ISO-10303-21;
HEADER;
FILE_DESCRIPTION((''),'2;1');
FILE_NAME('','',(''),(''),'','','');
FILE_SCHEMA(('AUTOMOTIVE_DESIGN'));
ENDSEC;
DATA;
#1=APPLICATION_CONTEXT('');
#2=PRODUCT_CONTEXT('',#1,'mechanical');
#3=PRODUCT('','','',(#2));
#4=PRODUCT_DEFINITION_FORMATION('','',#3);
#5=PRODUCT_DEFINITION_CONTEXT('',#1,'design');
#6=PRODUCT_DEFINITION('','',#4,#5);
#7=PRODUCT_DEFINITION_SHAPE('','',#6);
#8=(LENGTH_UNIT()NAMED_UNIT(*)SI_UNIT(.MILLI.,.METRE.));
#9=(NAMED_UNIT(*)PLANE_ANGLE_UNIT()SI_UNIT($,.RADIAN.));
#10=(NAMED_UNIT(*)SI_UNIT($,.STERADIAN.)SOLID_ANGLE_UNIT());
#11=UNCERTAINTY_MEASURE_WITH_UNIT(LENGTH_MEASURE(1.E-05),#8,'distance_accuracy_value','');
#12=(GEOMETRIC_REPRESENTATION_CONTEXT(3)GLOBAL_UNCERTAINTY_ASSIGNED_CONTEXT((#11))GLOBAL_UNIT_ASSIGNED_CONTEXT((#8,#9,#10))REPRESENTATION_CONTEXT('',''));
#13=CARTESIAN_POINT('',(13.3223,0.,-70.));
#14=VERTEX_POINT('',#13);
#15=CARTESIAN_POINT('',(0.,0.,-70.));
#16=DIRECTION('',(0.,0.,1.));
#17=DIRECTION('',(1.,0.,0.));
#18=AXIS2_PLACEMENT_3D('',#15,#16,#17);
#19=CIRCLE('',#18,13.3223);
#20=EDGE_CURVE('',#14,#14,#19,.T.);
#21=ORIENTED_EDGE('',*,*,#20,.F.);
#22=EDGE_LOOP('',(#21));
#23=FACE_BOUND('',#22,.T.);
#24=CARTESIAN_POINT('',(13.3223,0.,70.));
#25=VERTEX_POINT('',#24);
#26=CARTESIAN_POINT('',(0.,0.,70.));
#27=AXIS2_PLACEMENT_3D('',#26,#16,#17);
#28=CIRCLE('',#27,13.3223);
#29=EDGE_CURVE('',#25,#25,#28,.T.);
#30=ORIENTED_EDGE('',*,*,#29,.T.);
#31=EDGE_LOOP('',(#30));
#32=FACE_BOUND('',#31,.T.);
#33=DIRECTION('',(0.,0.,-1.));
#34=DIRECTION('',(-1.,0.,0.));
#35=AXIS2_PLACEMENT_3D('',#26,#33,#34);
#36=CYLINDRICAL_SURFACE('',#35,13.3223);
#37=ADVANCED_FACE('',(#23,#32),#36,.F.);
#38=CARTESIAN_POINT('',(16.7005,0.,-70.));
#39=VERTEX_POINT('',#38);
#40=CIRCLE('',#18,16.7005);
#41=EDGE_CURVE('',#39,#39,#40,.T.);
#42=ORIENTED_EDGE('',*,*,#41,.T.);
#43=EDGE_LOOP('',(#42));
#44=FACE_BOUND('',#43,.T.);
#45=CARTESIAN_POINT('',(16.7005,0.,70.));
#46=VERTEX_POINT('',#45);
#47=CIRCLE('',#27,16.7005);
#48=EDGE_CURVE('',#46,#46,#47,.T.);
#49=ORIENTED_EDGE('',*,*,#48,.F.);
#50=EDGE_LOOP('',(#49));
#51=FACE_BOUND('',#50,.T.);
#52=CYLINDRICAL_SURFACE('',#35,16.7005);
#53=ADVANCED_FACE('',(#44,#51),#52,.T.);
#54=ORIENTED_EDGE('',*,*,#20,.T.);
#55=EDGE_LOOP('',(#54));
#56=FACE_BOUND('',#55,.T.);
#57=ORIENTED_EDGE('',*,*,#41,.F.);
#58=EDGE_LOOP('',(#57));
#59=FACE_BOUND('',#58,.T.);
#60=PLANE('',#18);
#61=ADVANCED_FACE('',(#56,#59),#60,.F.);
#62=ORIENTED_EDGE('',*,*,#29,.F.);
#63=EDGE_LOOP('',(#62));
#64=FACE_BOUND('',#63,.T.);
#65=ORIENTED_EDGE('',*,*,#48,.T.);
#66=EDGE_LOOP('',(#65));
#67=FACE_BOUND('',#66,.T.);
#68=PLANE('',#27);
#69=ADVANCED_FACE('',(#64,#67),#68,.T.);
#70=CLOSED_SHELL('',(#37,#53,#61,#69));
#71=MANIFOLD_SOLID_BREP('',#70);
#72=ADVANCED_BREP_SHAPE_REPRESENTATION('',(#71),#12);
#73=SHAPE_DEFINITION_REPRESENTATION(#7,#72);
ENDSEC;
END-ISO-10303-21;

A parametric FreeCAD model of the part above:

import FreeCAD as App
import Part
import Sketcher

V = App.Vector
Q = App.Units.Quantity

doc = App.newDocument("Part")
params = doc.addObject("Spreadsheet::Sheet", "Params")
for row, (alias, value) in enumerate([
    ("sketch1_diameter", "1.315 in"),
    ("sketch1_diameter2", "1.049 in"),
    ("pad1_length", "140 mm"),
], start=1):
    params.set(f"A{row}", alias)
    params.set(f"B{row}", "=" + value)
    params.setAlias(f"B{row}", alias)

body = doc.addObject("PartDesign::Body", "Body")

# Sketch on XY plane
sketch1 = doc.addObject("Sketcher::SketchObject", "Sketch")
body.addObject(sketch1)
sketch1.AttachmentSupport = (doc.XY_Plane, [""])
sketch1.MapMode = "FlatFace"
sketch1.addGeometry([
    Part.Circle(V(0, 0, 0), V(0, 0, 1), 17),
    Part.Circle(V(0, 0, 0), V(0, 0, 1), 13),
], False)
sketch1.addConstraint([
    Sketcher.Constraint("Coincident", 0, 3, -1, 1),
    Sketcher.Constraint("Coincident", 1, 3, -1, 1),
    Sketcher.Constraint("Diameter", 0, Q("1.315 in")),
    Sketcher.Constraint("Diameter", 1, Q("1.049 in")),
])
sketch1.setExpression("Constraints[2]", "Params.sketch1_diameter")
sketch1.setExpression("Constraints[3]", "Params.sketch1_diameter2")
pad1 = doc.addObject("PartDesign::Pad", "Pad")
body.addObject(pad1)
pad1.Profile = sketch1
pad1.setExpression("Length", "Params.pad1_length")
pad1.Midplane = True

doc.recompute()
